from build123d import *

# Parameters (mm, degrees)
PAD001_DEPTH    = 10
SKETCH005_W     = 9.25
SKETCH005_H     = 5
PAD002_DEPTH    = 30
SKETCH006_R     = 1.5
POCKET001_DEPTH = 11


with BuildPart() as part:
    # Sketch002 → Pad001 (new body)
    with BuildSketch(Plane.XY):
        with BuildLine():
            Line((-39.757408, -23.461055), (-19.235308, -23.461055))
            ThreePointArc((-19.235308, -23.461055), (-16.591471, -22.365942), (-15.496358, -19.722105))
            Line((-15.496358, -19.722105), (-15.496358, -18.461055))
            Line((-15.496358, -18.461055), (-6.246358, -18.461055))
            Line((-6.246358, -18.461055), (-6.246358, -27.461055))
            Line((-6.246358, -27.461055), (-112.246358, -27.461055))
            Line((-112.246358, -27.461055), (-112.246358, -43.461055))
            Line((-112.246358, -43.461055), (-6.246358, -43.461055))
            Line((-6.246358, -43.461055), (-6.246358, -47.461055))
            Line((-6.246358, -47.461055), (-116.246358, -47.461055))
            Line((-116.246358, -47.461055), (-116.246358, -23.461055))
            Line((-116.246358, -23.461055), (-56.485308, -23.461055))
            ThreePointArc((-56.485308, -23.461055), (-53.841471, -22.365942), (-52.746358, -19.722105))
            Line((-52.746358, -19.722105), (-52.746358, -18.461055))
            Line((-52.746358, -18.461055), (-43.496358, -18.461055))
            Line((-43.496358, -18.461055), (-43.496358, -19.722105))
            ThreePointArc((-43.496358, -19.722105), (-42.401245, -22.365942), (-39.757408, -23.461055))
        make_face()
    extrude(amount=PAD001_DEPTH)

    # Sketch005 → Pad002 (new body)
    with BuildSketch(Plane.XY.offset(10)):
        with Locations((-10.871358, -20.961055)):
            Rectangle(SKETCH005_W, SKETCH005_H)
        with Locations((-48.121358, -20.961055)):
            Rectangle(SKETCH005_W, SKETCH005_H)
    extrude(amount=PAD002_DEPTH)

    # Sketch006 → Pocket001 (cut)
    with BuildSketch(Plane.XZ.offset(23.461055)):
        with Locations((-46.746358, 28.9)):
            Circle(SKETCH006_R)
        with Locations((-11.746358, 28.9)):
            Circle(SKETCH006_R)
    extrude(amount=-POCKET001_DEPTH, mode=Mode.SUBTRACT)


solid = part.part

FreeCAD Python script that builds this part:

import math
import FreeCAD as App
import Part
import Sketcher
from FreeCAD import Vector
Q = App.Units.Quantity


def add_polygon(sketch, points):
    """Adds a closed chain of lines whose ends are joined by coincident constraints."""
    first, n = sketch.GeometryCount, len(points)
    for a, b in zip(points, points[1:] + points[:1]):
        sketch.addGeometry(Part.LineSegment(App.Vector(*a, 0), App.Vector(*b, 0)), False)
    for i in range(n):
        sketch.addConstraint(Sketcher.Constraint("Coincident", first + i, 2, first + (i + 1) % n, 1))

doc = App.newDocument("Part")
body = doc.addObject("PartDesign::Body", "Body")

# Sketch on XY plane
sketch1 = doc.addObject("Sketcher::SketchObject", "Sketch")
body.addObject(sketch1)
sketch1.AttachmentSupport = (doc.XY_Plane, [""])
sketch1.MapMode = "FlatFace"
sketch1.addGeometry([
    Part.LineSegment(Vector(-19.235308, -23.461055, 0), Vector(-39.757408, -23.461055, 0)),  # 0
    Part.ArcOfCircle(Part.Circle(Vector(-39.757408, -19.722105, 0), Vector(0, 0, 1), 3.73895), math.radians(179.999995), math.radians(270.000005)),  # 1
    Part.LineSegment(Vector(-43.496358, -19.722105, 0), Vector(-43.496358, -18.461055, 0)),  # 2
    Part.LineSegment(Vector(-43.496358, -18.461055, 0), Vector(-52.746358, -18.461055, 0)),  # 3
    Part.LineSegment(Vector(-52.746358, -18.461055, 0), Vector(-52.746358, -19.722105, 0)),  # 4
    Part.ArcOfCircle(Part.Circle(Vector(-56.485308, -19.722105, 0), Vector(0, 0, 1), 3.73895), math.radians(-90.000005), math.radians(0.000005)),  # 5
    Part.LineSegment(Vector(-56.485308, -23.461055, 0), Vector(-116.246358, -23.461055, 0)),  # 6
    Part.LineSegment(Vector(-116.246358, -23.461055, 0), Vector(-116.246358, -47.461055, 0)),  # 7
    Part.LineSegment(Vector(-116.246358, -47.461055, 0), Vector(-6.246358, -47.461055, 0)),  # 8
    Part.LineSegment(Vector(-6.246358, -47.461055, 0), Vector(-6.246358, -43.461055, 0)),  # 9
    Part.LineSegment(Vector(-6.246358, -43.461055, 0), Vector(-112.246358, -43.461055, 0)),  # 10
    Part.LineSegment(Vector(-112.246358, -43.461055, 0), Vector(-112.246358, -27.461055, 0)),  # 11
    Part.LineSegment(Vector(-112.246358, -27.461055, 0), Vector(-6.246358, -27.461055, 0)),  # 12
    Part.LineSegment(Vector(-6.246358, -27.461055, 0), Vector(-6.246358, -18.461055, 0)),  # 13
    Part.LineSegment(Vector(-6.246358, -18.461055, 0), Vector(-15.496358, -18.461055, 0)),  # 14
    Part.LineSegment(Vector(-15.496358, -18.461055, 0), Vector(-15.496358, -19.722105, 0)),  # 15
    Part.ArcOfCircle(Part.Circle(Vector(-19.235308, -19.722105, 0), Vector(0, 0, 1), 3.73895), math.radians(-90.000005), math.radians(0.000005)),  # 16
], False)
sketch1.addConstraint([
    Sketcher.Constraint("Tangent", 0, 2, 1, 2),
    Sketcher.Constraint("Tangent", 1, 1, 2, 1),
    Sketcher.Constraint("Coincident", 2, 2, 3, 1),
    Sketcher.Constraint("Coincident", 3, 2, 4, 1),
    Sketcher.Constraint("Tangent", 4, 2, 5, 2),
    Sketcher.Constraint("Tangent", 5, 1, 6, 1),
    Sketcher.Constraint("Coincident", 6, 2, 7, 1),
    Sketcher.Constraint("Coincident", 7, 2, 8, 1),
    Sketcher.Constraint("Coincident", 8, 2, 9, 1),
    Sketcher.Constraint("Coincident", 9, 2, 10, 1),
    Sketcher.Constraint("Coincident", 10, 2, 11, 1),
    Sketcher.Constraint("Coincident", 11, 2, 12, 1),
    Sketcher.Constraint("Coincident", 12, 2, 13, 1),
    Sketcher.Constraint("Coincident", 13, 2, 14, 1),
    Sketcher.Constraint("Coincident", 14, 2, 15, 1),
    Sketcher.Constraint("Tangent", 15, 2, 16, 2),
    Sketcher.Constraint("Tangent", 16, 1, 0, 1),
    Sketcher.Constraint("Horizontal", 0),
    Sketcher.Constraint("Vertical", 2),
    Sketcher.Constraint("Horizontal", 3),
    Sketcher.Constraint("Vertical", 4),
    Sketcher.Constraint("Horizontal", 6),
    Sketcher.Constraint("Vertical", 7),
    Sketcher.Constraint("Horizontal", 8),
    Sketcher.Constraint("Vertical", 9),
    Sketcher.Constraint("Horizontal", 10),
    Sketcher.Constraint("Vertical", 11),
    Sketcher.Constraint("Horizontal", 12),
    Sketcher.Constraint("Vertical", 13),
    Sketcher.Constraint("Horizontal", 14),
    Sketcher.Constraint("Vertical", 15),
    Sketcher.Constraint("Equal", 1, 5),
    Sketcher.Constraint("Equal", 5, 16),
    Sketcher.Constraint("Horizontal", 1, 3, 5, 3),
    Sketcher.Constraint("Horizontal", 3, 2, 13, 2),
    Sketcher.Constraint("Vertical", 9, 2, 12, 2),
    Sketcher.Constraint("Equal", 3, 14),
    Sketcher.Constraint("DistanceX", 8, 1, 8, 2, Q("110 mm")),
    Sketcher.Constraint("DistanceX", 10, 2, 10, 1, Q("106 mm")),
    Sketcher.Constraint("DistanceY", 7, 2, 7, 1, Q("24 mm")),
    Sketcher.Constraint("DistanceY", 9, 1, 9, 2, Q("4 mm")),
    Sketcher.Constraint("DistanceY", 11, 1, 11, 2, Q("16 mm")),
    Sketcher.Constraint("DistanceY", 13, 1, 13, 2, Q("9 mm")),
    Sketcher.Constraint("DistanceX", 3, 2, 3, 1, Q("9.25 mm")),
    Sketcher.Constraint("DistanceX", 6, 2, 4, 2, Q("63.5 mm")),
    Sketcher.Constraint("Radius", 1, Q("3.73895 mm")),
    Sketcher.Constraint("DistanceX", 1, 3, -1, 1, Q("39.757408 mm")),
    Sketcher.Constraint("DistanceY", 1, 3, -1, 1, Q("19.722105 mm")),
])
pad1 = doc.addObject("PartDesign::Pad", "Pad")
body.addObject(pad1)
pad1.Profile = sketch1
pad1.Length = 10

# Sketch on XY plane
sketch2 = doc.addObject("Sketcher::SketchObject", "Sketch001")
body.addObject(sketch2)
sketch2.AttachmentSupport = (doc.XY_Plane, [""])
sketch2.MapMode = "FlatFace"
sketch2.AttachmentOffset = App.Placement(Vector(0, 0, 10), App.Rotation())
add_polygon(sketch2, [(-15.496358, -18.461055), (-15.496358, -23.461055), (-6.246358, -23.461055), (-6.246358, -18.461055)])  # lines 0-3
add_polygon(sketch2, [(-52.746358, -18.461055), (-52.746358, -23.461055), (-43.496358, -23.461055), (-43.496358, -18.461055)])  # lines 4-7
sketch2.addConstraint([
    Sketcher.Constraint("Vertical", 0),
    Sketcher.Constraint("Horizontal", 1),
    Sketcher.Constraint("Vertical", 2),
    Sketcher.Constraint("Horizontal", 3),
    Sketcher.Constraint("Vertical", 4),
    Sketcher.Constraint("Horizontal", 5),
    Sketcher.Constraint("Vertical", 6),
    Sketcher.Constraint("Horizontal", 7),
    Sketcher.Constraint("Horizontal", 1, 2, 4, 2),
    Sketcher.Constraint("Horizontal", 3, 2, 6, 2),
    Sketcher.Constraint("Equal", 3, 5),
    Sketcher.Constraint("DistanceY", 0, 2, 0, 1, Q("5 mm")),
    Sketcher.Constraint("DistanceX", 5, 2, 0, 2, Q("28 mm")),
    Sketcher.Constraint("DistanceX", 1, 1, 1, 2, Q("9.25 mm")),
    Sketcher.Constraint("DistanceX", 0, 2, -1, 1, Q("15.496358 mm")),
    Sketcher.Constraint("DistanceY", 0, 2, -1, 1, Q("23.461055 mm")),
])
pad2 = doc.addObject("PartDesign::Pad", "Pad001")
body.addObject(pad2)
pad2.Profile = sketch2
pad2.Length = 30

# Sketch on XZ plane
sketch3 = doc.addObject("Sketcher::SketchObject", "Sketch002")
body.addObject(sketch3)
sketch3.AttachmentSupport = (doc.XZ_Plane, [""])
sketch3.MapMode = "FlatFace"
sketch3.AttachmentOffset = App.Placement(Vector(0, 0, 23.461055), App.Rotation())
sketch3.addGeometry([
    Part.Circle(Vector(-46.746358, 28.9, 0), Vector(0, 0, 1), 1.5),
    Part.Circle(Vector(-11.746358, 28.9, 0), Vector(0, 0, 1), 1.5),
], False)
sketch3.addConstraint([
    Sketcher.Constraint("Equal", 0, 1),
    Sketcher.Constraint("Horizontal", 0, 3, 1, 3),
    Sketcher.Constraint("Diameter", 0, Q("3 mm")),
    Sketcher.Constraint("DistanceX", 0, 3, 1, 3, Q("35 mm")),
    Sketcher.Constraint("DistanceY", -1, 1, 0, 3, Q("28.9 mm")),
    Sketcher.Constraint("DistanceX", 1, 3, -1, 1, Q("11.746358 mm")),
])
pocket1 = doc.addObject("PartDesign::Pocket", "Pocket")
body.addObject(pocket1)
pocket1.Profile = sketch3
pocket1.Length = 11

doc.recompute()
